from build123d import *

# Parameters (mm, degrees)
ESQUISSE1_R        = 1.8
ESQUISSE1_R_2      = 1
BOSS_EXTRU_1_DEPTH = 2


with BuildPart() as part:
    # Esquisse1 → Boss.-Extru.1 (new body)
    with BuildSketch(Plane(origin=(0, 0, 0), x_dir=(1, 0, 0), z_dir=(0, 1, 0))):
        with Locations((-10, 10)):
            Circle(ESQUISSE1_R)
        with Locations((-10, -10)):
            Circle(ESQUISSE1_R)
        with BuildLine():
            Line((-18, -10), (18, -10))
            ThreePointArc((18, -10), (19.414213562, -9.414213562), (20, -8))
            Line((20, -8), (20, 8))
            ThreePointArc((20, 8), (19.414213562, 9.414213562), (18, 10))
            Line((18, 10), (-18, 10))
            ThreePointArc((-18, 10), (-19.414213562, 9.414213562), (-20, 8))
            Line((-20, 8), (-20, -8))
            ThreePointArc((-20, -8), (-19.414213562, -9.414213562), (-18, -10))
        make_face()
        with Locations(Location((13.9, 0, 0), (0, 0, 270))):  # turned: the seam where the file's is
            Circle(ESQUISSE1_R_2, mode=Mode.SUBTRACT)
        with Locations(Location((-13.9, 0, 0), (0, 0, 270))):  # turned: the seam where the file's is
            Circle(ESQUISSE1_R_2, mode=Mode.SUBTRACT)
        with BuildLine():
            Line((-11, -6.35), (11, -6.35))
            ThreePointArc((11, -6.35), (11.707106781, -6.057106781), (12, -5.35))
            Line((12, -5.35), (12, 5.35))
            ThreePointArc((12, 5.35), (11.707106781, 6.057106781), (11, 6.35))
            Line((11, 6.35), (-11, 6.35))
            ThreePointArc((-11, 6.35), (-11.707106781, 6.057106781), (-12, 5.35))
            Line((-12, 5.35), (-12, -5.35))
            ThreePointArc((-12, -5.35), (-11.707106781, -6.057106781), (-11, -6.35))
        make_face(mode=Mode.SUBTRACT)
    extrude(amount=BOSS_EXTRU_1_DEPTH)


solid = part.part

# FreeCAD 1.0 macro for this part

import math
import FreeCAD as App
import Part
import Sketcher

V = App.Vector
Q = App.Units.Quantity

doc = App.newDocument("Part")
body = doc.addObject("PartDesign::Body", "Body")

sketch1 = body.newObject("Sketcher::SketchObject", "Sketch")
sketch1.AttachmentSupport = (doc.getObject("XZ_Plane"), [""])
sketch1.MapMode = "FlatFace"
sketch1.addGeometry([
    Part.ArcOfCircle(Part.Circle(V(-10, -10, 0), V(0, 0, 1), 1.8), math.radians(180), math.radians(360)),
    Part.LineSegment(V(-11.8, -10, 0), V(-18, -10, 0)),
    Part.ArcOfCircle(Part.Circle(V(-18, -8, 0), V(0, 0, 1), 2), math.radians(-180), math.radians(-90)),
    Part.LineSegment(V(-20, -8, 0), V(-20, 8, 0)),
    Part.ArcOfCircle(Part.Circle(V(-18, 8, 0), V(0, 0, 1), 2), math.radians(90), math.radians(180)),
    Part.LineSegment(V(-18, 10, 0), V(-11.8, 10, 0)),
    Part.ArcOfCircle(Part.Circle(V(-10, 10, 0), V(0, 0, 1), 1.8), math.radians(0), math.radians(180)),
    Part.LineSegment(V(-8.2, 10, 0), V(18, 10, 0)),
    Part.ArcOfCircle(Part.Circle(V(18, 8, 0), V(0, 0, 1), 2), math.radians(0), math.radians(90)),
    Part.LineSegment(V(20, 8, 0), V(20, -8, 0)),
    Part.ArcOfCircle(Part.Circle(V(18, -8, 0), V(0, 0, 1), 2), math.radians(-90), math.radians(0)),
    Part.LineSegment(V(18, -10, 0), V(-8.2, -10, 0)),
    Part.Circle(V(-13.9, 0, 0), V(0, 0, 1), 1),
    Part.LineSegment(V(11, 6.3, 0), V(-11, 6.3, 0)),
    Part.ArcOfCircle(Part.Circle(V(-11, 5.3, 0), V(0, 0, 1), 1), math.radians(90), math.radians(180)),
    Part.LineSegment(V(-12, 5.3, 0), V(-12, -5.3, 0)),
    Part.ArcOfCircle(Part.Circle(V(-11, -5.3, 0), V(0, 0, 1), 1), math.radians(-180), math.radians(-90)),
    Part.LineSegment(V(-11, -6.3, 0), V(11, -6.3, 0)),
    Part.ArcOfCircle(Part.Circle(V(11, -5.3, 0), V(0, 0, 1), 1), math.radians(-90), math.radians(0)),
    Part.LineSegment(V(12, -5.3, 0), V(12, 5.3, 0)),
    Part.ArcOfCircle(Part.Circle(V(11, 5.3, 0), V(0, 0, 1), 1), math.radians(0), math.radians(90)),
    Part.Circle(V(13.9, 0, 0), V(0, 0, 1), 1),
], False)
sketch1.addConstraint([
    Sketcher.Constraint("Coincident", 0, 1, 1, 1),
    Sketcher.Constraint("Tangent", 1, 2, 2, 2),
    Sketcher.Constraint("Tangent", 2, 1, 3, 1),
    Sketcher.Constraint("Tangent", 3, 2, 4, 2),
    Sketcher.Constraint("Tangent", 4, 1, 5, 1),
    Sketcher.Constraint("Coincident", 5, 2, 6, 2),
    Sketcher.Constraint("Coincident", 6, 1, 7, 1),
    Sketcher.Constraint("Tangent", 7, 2, 8, 2),
    Sketcher.Constraint("Tangent", 8, 1, 9, 1),
    Sketcher.Constraint("Tangent", 9, 2, 10, 2),
    Sketcher.Constraint("Tangent", 10, 1, 11, 1),
    Sketcher.Constraint("Coincident", 11, 2, 0, 2),
    Sketcher.Constraint("Tangent", 13, 2, 14, 1),
    Sketcher.Constraint("Tangent", 14, 2, 15, 1),
    Sketcher.Constraint("Tangent", 15, 2, 16, 1),
    Sketcher.Constraint("Tangent", 16, 2, 17, 1),
    Sketcher.Constraint("Tangent", 17, 2, 18, 1),
    Sketcher.Constraint("Tangent", 18, 2, 19, 1),
    Sketcher.Constraint("Tangent", 19, 2, 20, 1),
    Sketcher.Constraint("Tangent", 20, 2, 13, 1),
    Sketcher.Constraint("Horizontal", 1),
    Sketcher.Constraint("Vertical", 3),
    Sketcher.Constraint("Horizontal", 5),
    Sketcher.Constraint("Horizontal", 7),
    Sketcher.Constraint("Vertical", 9),
    Sketcher.Constraint("Horizontal", 11),
    Sketcher.Constraint("Horizontal", 13),
    Sketcher.Constraint("Vertical", 15),
    Sketcher.Constraint("Horizontal", 17),
    Sketcher.Constraint("Vertical", 19),
    Sketcher.Constraint("Equal", 2, 4),
    Sketcher.Constraint("Equal", 0, 6),
    Sketcher.Constraint("Equal", 4, 8),
    Sketcher.Constraint("Equal", 8, 10),
    Sketcher.Constraint("Equal", 12, 14),
    Sketcher.Constraint("Equal", 14, 16),
    Sketcher.Constraint("Equal", 16, 18),
    Sketcher.Constraint("Equal", 18, 20),
    Sketcher.Constraint("Equal", 20, 21),
    Sketcher.Constraint("Symmetric", 2, 3, 8, 3, -1, 1),
    Sketcher.Constraint("Symmetric", 14, 3, 18, 3, -1, 1),
    Sketcher.Constraint("Symmetric", 12, 3, 21, 3, -1, 1),
    Sketcher.Constraint("Symmetric", 0, 3, 6, 3, -1),
    Sketcher.Constraint("PointOnObject", 12, 3, -1),
    Sketcher.Constraint("Horizontal", 4, 3, 8, 3),
    Sketcher.Constraint("Horizontal", 2, 3, 10, 3),
    Sketcher.Constraint("Horizontal", 6, 3, 4, 1),
    Sketcher.Constraint("Diameter", 12, Q("2 mm")),
    Sketcher.Constraint("Radius", 2, Q("2 mm")),
    Sketcher.Constraint("Radius", 0, Q("1.8 mm")),
    Sketcher.Constraint("DistanceX", 13, 2, 13, 1, Q("22 mm")),
    Sketcher.Constraint("DistanceY", 3, 1, 3, 2, Q("16 mm")),
    Sketcher.Constraint("DistanceX", 1, 2, 1, 1, Q("6.2 mm")),
    Sketcher.Constraint("DistanceX", 7, 1, 7, 2, Q("26.2 mm")),
    Sketcher.Constraint("DistanceY", 15, 2, 15, 1, Q("10.7 mm")),
    Sketcher.Constraint("DistanceX", 12, 3, -1, 1, Q("13.9 mm")),
])
pad1 = body.newObject("PartDesign::Pad", "Pad")
pad1.Profile = sketch1
pad1.Length = 2
pad1.Reversed = True

doc.recompute()
